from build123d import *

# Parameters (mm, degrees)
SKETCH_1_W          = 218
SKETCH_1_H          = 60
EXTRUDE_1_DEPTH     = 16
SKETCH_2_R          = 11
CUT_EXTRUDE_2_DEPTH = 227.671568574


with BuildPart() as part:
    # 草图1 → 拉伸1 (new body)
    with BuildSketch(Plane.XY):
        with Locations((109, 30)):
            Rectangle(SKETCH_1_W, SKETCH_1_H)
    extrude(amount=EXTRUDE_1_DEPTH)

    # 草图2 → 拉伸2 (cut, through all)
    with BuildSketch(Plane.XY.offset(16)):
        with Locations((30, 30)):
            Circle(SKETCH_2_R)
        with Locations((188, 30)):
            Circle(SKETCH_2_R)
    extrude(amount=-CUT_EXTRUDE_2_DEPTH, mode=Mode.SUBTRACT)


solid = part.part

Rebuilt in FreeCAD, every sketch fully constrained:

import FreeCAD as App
import Part
import Sketcher
from FreeCAD import Vector
Q = App.Units.Quantity

doc = App.newDocument("Part")
body = doc.addObject("PartDesign::Body", "Body")

# Sketch on XY plane
sketch1 = body.newObject("Sketcher::SketchObject", "Sketch")
sketch1.AttachmentSupport = (doc.getObject("XY_Plane"), [""])
sketch1.MapMode = "FlatFace"
sketch1.addGeometry([
    Part.LineSegment(Vector(0, 60, 0), Vector(0, 0, 0)),
    Part.LineSegment(Vector(0, 0, 0), Vector(218, 0, 0)),
    Part.LineSegment(Vector(218, 0, 0), Vector(218, 60, 0)),
    Part.LineSegment(Vector(218, 60, 0), Vector(0, 60, 0)),
], False)
sketch1.addConstraint([
    Sketcher.Constraint("Coincident", 0, 2, 1, 1),
    Sketcher.Constraint("Coincident", 1, 2, 2, 1),
    Sketcher.Constraint("Coincident", 2, 2, 3, 1),
    Sketcher.Constraint("Coincident", 3, 2, 0, 1),
    Sketcher.Constraint("Vertical", 0),
    Sketcher.Constraint("Horizontal", 1),
    Sketcher.Constraint("Vertical", 2),
    Sketcher.Constraint("Horizontal", 3),
    Sketcher.Constraint("Coincident", 0, 2, -1, 1),
    Sketcher.Constraint("DistanceX", 1, 1, 1, 2, Q("218 mm")),
    Sketcher.Constraint("DistanceY", 0, 2, 0, 1, Q("60 mm")),
])
pad1 = body.newObject("PartDesign::Pad", "Pad")
pad1.Profile = sketch1
pad1.Length = 16

# Sketch on XY plane
sketch2 = body.newObject("Sketcher::SketchObject", "Sketch001")
sketch2.AttachmentSupport = (doc.getObject("XY_Plane"), [""])
sketch2.MapMode = "FlatFace"
sketch2.AttachmentOffset = App.Placement(Vector(0, 0, 16), App.Rotation())
sketch2.addGeometry([
    Part.Circle(Vector(30, 30, 0), Vector(0, 0, 1), 11),
    Part.Circle(Vector(188, 30, 0), Vector(0, 0, 1), 11),
], False)
sketch2.addConstraint([
    Sketcher.Constraint("Equal", 0, 1),
    Sketcher.Constraint("Horizontal", 0, 3, 1, 3),
    Sketcher.Constraint("Diameter", 0, Q("22 mm")),
    Sketcher.Constraint("DistanceX", -1, 1, 0, 3, Q("30 mm")),
    Sketcher.Constraint("DistanceY", -1, 1, 0, 3, Q("30 mm")),
    Sketcher.Constraint("DistanceX", -1, 1, 1, 3, Q("188 mm")),
])
pocket1 = body.newObject("PartDesign::Pocket", "Pocket")
pocket1.Profile = sketch2
pocket1.Type = "ThroughAll"

doc.recompute()
